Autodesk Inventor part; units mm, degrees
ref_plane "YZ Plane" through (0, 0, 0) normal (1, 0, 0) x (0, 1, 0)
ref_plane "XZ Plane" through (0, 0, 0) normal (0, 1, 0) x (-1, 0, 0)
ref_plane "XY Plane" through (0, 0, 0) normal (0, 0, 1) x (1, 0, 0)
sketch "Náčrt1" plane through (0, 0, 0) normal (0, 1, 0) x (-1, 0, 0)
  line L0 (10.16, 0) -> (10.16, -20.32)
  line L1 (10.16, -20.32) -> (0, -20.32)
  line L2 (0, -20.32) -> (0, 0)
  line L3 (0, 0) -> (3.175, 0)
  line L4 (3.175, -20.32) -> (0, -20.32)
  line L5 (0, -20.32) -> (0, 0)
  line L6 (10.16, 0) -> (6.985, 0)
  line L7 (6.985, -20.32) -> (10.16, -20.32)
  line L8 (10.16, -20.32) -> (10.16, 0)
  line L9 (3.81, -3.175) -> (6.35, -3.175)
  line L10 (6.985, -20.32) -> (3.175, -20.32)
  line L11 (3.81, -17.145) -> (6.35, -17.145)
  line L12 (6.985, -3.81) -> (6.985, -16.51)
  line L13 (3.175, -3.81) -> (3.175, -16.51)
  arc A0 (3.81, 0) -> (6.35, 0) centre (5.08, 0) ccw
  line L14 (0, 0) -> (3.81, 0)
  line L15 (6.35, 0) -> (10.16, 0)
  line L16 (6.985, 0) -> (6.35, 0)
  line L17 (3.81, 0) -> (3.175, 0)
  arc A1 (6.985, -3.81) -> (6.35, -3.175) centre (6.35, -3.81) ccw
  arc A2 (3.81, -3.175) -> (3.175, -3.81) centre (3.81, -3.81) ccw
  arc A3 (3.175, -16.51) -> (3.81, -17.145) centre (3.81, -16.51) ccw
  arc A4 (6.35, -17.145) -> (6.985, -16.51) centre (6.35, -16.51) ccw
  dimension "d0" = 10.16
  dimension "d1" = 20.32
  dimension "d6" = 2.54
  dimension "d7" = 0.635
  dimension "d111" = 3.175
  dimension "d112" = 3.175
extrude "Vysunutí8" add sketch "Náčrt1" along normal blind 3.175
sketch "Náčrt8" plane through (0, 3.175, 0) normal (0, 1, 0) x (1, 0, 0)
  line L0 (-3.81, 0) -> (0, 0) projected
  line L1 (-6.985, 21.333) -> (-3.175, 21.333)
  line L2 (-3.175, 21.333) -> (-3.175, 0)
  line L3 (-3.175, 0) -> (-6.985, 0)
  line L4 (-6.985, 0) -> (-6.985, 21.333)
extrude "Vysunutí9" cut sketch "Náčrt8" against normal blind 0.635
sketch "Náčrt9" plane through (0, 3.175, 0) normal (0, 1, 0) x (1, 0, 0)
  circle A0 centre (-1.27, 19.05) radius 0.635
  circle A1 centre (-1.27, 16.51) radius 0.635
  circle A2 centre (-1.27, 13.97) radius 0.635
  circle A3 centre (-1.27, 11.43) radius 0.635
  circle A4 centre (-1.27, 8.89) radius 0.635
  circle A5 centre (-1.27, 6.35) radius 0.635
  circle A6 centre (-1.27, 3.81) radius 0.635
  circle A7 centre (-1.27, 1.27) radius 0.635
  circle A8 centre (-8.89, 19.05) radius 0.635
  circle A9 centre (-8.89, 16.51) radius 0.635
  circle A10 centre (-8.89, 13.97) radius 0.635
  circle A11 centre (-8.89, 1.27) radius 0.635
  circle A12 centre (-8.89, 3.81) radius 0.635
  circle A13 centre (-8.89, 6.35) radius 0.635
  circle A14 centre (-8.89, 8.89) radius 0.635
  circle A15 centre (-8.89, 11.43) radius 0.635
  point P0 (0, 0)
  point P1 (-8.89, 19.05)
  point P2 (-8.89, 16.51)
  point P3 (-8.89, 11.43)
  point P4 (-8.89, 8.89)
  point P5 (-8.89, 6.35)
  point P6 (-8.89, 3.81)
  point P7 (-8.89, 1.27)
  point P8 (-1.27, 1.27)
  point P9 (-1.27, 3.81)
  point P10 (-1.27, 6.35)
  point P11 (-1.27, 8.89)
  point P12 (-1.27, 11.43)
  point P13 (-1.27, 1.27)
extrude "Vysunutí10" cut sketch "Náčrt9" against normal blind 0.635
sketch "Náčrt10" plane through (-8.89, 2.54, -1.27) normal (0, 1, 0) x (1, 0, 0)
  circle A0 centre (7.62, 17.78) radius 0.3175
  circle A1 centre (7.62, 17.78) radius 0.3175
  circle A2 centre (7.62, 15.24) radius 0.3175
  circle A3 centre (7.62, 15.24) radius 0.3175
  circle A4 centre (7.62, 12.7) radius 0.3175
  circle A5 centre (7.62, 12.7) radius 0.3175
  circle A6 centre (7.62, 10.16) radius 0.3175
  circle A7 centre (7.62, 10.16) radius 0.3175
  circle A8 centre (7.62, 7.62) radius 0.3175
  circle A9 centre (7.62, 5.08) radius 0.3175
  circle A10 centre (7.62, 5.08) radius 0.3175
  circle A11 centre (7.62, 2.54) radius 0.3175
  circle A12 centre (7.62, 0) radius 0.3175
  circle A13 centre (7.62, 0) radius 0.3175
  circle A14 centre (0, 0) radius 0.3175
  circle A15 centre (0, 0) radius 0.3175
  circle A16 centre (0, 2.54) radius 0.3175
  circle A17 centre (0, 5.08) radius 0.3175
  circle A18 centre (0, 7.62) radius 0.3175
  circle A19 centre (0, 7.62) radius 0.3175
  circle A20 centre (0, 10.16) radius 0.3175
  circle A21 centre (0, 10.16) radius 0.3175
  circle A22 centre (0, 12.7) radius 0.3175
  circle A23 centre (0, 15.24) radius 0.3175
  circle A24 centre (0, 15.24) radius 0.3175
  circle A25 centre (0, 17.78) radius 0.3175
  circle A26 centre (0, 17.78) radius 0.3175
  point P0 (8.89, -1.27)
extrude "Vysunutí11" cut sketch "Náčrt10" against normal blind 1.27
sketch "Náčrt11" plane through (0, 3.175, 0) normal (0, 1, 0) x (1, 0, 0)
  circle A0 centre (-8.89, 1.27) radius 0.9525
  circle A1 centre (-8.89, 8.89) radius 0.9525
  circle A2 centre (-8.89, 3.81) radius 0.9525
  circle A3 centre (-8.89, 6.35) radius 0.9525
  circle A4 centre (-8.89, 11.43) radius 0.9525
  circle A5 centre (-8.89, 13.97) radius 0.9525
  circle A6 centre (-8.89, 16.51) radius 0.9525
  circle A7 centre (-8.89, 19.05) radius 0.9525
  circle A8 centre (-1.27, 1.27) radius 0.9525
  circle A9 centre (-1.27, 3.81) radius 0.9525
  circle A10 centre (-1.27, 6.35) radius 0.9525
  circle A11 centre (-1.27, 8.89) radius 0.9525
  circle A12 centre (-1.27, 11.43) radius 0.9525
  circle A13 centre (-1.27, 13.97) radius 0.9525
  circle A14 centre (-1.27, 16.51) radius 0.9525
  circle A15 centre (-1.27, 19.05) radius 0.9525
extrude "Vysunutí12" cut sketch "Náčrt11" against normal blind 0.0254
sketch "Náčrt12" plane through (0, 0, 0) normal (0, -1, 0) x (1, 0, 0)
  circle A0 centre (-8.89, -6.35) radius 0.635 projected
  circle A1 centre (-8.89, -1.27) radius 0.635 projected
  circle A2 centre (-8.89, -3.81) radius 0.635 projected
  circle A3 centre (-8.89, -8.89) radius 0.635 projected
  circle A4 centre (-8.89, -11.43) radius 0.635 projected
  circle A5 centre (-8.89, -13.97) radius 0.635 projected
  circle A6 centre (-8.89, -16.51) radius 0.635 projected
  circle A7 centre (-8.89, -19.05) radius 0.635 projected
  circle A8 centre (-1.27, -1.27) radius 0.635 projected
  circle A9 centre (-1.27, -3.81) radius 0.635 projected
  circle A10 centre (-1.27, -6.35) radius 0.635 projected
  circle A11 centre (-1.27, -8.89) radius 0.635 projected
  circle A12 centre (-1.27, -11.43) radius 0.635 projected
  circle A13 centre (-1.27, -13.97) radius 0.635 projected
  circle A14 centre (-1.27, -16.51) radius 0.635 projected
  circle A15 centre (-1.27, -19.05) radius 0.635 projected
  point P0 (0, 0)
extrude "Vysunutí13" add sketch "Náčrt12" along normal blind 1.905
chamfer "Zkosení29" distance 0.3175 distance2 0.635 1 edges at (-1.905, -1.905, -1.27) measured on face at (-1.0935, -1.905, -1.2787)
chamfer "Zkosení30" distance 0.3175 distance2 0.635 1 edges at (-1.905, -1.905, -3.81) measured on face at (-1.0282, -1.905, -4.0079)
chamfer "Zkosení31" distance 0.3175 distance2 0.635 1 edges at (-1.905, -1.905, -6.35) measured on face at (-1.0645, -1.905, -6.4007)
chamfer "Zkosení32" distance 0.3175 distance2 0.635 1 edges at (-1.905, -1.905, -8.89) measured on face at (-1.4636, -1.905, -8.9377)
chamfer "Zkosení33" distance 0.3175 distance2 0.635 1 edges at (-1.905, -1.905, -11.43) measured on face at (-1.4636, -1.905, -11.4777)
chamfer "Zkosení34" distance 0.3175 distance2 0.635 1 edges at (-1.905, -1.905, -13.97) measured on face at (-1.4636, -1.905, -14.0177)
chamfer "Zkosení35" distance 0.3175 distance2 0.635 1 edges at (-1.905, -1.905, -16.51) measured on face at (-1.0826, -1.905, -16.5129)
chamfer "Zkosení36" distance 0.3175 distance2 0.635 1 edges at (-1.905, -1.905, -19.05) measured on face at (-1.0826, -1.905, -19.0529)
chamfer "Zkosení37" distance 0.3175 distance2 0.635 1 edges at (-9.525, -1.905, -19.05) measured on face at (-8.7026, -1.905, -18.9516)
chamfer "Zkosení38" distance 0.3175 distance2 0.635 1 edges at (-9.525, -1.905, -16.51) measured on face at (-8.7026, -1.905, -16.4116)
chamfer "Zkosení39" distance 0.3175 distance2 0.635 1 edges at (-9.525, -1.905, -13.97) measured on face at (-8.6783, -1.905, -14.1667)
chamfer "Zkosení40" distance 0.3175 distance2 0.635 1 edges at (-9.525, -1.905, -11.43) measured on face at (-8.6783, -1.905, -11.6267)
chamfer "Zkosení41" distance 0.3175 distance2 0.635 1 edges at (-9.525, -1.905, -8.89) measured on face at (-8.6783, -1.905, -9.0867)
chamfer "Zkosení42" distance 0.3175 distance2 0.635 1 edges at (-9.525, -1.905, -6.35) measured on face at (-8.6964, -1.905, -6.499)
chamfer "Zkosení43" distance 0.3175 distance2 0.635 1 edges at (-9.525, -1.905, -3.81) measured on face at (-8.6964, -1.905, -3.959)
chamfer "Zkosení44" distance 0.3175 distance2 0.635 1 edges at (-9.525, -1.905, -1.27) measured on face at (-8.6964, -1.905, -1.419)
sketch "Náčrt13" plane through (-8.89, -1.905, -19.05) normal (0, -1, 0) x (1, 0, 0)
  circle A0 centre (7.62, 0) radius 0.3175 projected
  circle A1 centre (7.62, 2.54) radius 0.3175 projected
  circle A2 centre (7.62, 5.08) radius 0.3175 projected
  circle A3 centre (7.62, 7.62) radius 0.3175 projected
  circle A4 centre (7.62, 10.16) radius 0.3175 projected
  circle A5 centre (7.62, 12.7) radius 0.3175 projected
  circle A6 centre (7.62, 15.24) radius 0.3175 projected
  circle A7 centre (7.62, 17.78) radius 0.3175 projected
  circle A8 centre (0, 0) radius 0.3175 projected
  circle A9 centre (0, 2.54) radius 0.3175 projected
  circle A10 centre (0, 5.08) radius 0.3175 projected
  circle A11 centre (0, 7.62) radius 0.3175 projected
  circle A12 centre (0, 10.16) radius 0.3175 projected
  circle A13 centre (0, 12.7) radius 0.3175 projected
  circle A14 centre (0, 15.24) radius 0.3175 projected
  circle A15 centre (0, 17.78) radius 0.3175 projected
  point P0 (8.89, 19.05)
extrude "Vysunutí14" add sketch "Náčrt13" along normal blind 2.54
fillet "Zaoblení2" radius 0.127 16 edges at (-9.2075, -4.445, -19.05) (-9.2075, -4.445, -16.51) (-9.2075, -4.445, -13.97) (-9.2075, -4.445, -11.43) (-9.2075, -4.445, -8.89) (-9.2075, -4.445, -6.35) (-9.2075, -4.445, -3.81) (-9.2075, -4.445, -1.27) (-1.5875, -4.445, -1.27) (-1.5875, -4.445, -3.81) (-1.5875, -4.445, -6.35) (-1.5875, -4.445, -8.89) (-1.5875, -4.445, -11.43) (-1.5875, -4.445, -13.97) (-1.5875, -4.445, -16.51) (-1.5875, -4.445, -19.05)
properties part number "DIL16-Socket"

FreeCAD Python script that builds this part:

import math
import FreeCAD as App
import Part
import Sketcher
Q = App.Units.Quantity


def edges_at(feature, points):
    """Names of the edges that pass closest to the given points."""
    edges = feature.Shape.Edges
    near = lambda p: min(range(len(edges)), key=lambda i: edges[i].distToShape(Part.Vertex(*p))[0])
    return sorted({f"Edge{near(p) + 1}" for p in points})

doc = App.newDocument("Part")
body = doc.addObject("PartDesign::Body", "Body")

sketch1 = body.newObject("Sketcher::SketchObject", "Sketch")
sketch1.AttachmentSupport = (doc.getObject("XZ_Plane"), [""])
sketch1.MapMode = "FlatFace"
sketch1.addGeometry(Part.LineSegment(App.Vector(-10.16, -20.32, 0), App.Vector(-10.16, 0, 0)), False)
sketch1.addGeometry(Part.LineSegment(App.Vector(-10.16, 0, 0), App.Vector(-6.35, 0, 0)), False)
sketch1.addGeometry(Part.ArcOfCircle(Part.Circle(App.Vector(-5.08, 0, 0), App.Vector(0, 0, 1), 1.27), math.radians(180), math.radians(360)), False)
sketch1.addGeometry(Part.LineSegment(App.Vector(-3.81, 0, 0), App.Vector(0, 0, 0)), False)
sketch1.addGeometry(Part.LineSegment(App.Vector(0, 0, 0), App.Vector(0, -20.32, 0)), False)
sketch1.addGeometry(Part.LineSegment(App.Vector(0, -20.32, 0), App.Vector(-10.16, -20.32, 0)), False)
sketch1.addGeometry(Part.ArcOfCircle(Part.Circle(App.Vector(-3.81, -3.81, 0), App.Vector(0, 0, 1), 0.635), math.radians(0), math.radians(90)), False)
sketch1.addGeometry(Part.LineSegment(App.Vector(-3.81, -3.175, 0), App.Vector(-6.35, -3.175, 0)), False)
sketch1.addGeometry(Part.ArcOfCircle(Part.Circle(App.Vector(-6.35, -3.81, 0), App.Vector(0, 0, 1), 0.635), math.radians(90), math.radians(180)), False)
sketch1.addGeometry(Part.LineSegment(App.Vector(-6.985, -3.81, 0), App.Vector(-6.985, -16.51, 0)), False)
sketch1.addGeometry(Part.ArcOfCircle(Part.Circle(App.Vector(-6.35, -16.51, 0), App.Vector(0, 0, 1), 0.635), math.radians(180), math.radians(270)), False)
sketch1.addGeometry(Part.LineSegment(App.Vector(-6.35, -17.145, 0), App.Vector(-3.81, -17.145, 0)), False)
sketch1.addGeometry(Part.ArcOfCircle(Part.Circle(App.Vector(-3.81, -16.51, 0), App.Vector(0, 0, 1), 0.635), math.radians(-90), math.radians(0)), False)
sketch1.addGeometry(Part.LineSegment(App.Vector(-3.175, -16.51, 0), App.Vector(-3.175, -3.81, 0)), False)
sketch1.addConstraint(Sketcher.Constraint("Coincident", 0, 2, 1, 1))
sketch1.addConstraint(Sketcher.Constraint("Coincident", 1, 2, 2, 1))
sketch1.addConstraint(Sketcher.Constraint("Coincident", 2, 2, 3, 1))
sketch1.addConstraint(Sketcher.Constraint("Coincident", 3, 2, 4, 1))
sketch1.addConstraint(Sketcher.Constraint("Coincident", 4, 2, 5, 1))
sketch1.addConstraint(Sketcher.Constraint("Coincident", 5, 2, 0, 1))
sketch1.addConstraint(Sketcher.Constraint("Tangent", 6, 2, 7, 1))
sketch1.addConstraint(Sketcher.Constraint("Tangent", 7, 2, 8, 1))
sketch1.addConstraint(Sketcher.Constraint("Tangent", 8, 2, 9, 1))
sketch1.addConstraint(Sketcher.Constraint("Tangent", 9, 2, 10, 1))
sketch1.addConstraint(Sketcher.Constraint("Tangent", 10, 2, 11, 1))
sketch1.addConstraint(Sketcher.Constraint("Tangent", 11, 2, 12, 1))
sketch1.addConstraint(Sketcher.Constraint("Tangent", 12, 2, 13, 1))
sketch1.addConstraint(Sketcher.Constraint("Tangent", 13, 2, 6, 1))
sketch1.addConstraint(Sketcher.Constraint("Vertical", 0))
sketch1.addConstraint(Sketcher.Constraint("Horizontal", 1))
sketch1.addConstraint(Sketcher.Constraint("Horizontal", 3))
sketch1.addConstraint(Sketcher.Constraint("Vertical", 4))
sketch1.addConstraint(Sketcher.Constraint("Horizontal", 5))
sketch1.addConstraint(Sketcher.Constraint("Horizontal", 7))
sketch1.addConstraint(Sketcher.Constraint("Vertical", 9))
sketch1.addConstraint(Sketcher.Constraint("Horizontal", 11))
sketch1.addConstraint(Sketcher.Constraint("Vertical", 13))
sketch1.addConstraint(Sketcher.Constraint("Coincident", 3, 2, -1, 1))
sketch1.addConstraint(Sketcher.Constraint("Equal", 6, 8))
sketch1.addConstraint(Sketcher.Constraint("Equal", 8, 10))
sketch1.addConstraint(Sketcher.Constraint("Equal", 10, 12))
sketch1.addConstraint(Sketcher.Constraint("PointOnObject", 2, 3, -1))
sketch1.addConstraint(Sketcher.Constraint("PointOnObject", 0, 2, -1))
sketch1.addConstraint(Sketcher.Constraint("Vertical", 10, 3, 1, 2))
sketch1.addConstraint(Sketcher.Constraint("Vertical", 12, 3, 2, 2))
sketch1.addConstraint(Sketcher.Constraint("Equal", 1, 3))
sketch1.addConstraint(Sketcher.Constraint("Radius", 2, Q("0.05 in")))
sketch1.addConstraint(Sketcher.Constraint("DistanceX", 5, 2, 5, 1, Q("0.4 in")))
sketch1.addConstraint(Sketcher.Constraint("DistanceY", 0, 1, 0, 2, Q("0.8 in")))
sketch1.addConstraint(Sketcher.Constraint("Radius", 6, Q("0.025 in")))
sketch1.addConstraint(Sketcher.Constraint("DistanceY", 9, 2, 9, 1, Q("0.5 in")))
sketch1.addConstraint(Sketcher.Constraint("DistanceY", 6, 2, -1, 1, Q("0.125 in")))
pad1 = body.newObject("PartDesign::Pad", "Pad")
pad1.Profile = sketch1
pad1.Length = Q("0.125 in")
pad1.Reversed = True

sketch2 = body.newObject("Sketcher::SketchObject", "Sketch001")
sketch2.AttachmentSupport = (doc.getObject("XZ_Plane"), [""])
sketch2.MapMode = "FlatFace"
sketch2.AttachmentOffset = App.Placement(App.Vector(0, 0, -0.125 * 25.4), App.Rotation())
sketch2.addGeometry(Part.LineSegment(App.Vector(-6.985, 0, 0), App.Vector(-3.175, 0, 0)), False)
sketch2.addGeometry(Part.LineSegment(App.Vector(-3.175, 0, 0), App.Vector(-3.175, -21.333, 0)), False)
sketch2.addGeometry(Part.LineSegment(App.Vector(-3.175, -21.333, 0), App.Vector(-6.985, -21.333, 0)), False)
sketch2.addGeometry(Part.LineSegment(App.Vector(-6.985, -21.333, 0), App.Vector(-6.985, 0, 0)), False)
sketch2.addConstraint(Sketcher.Constraint("Coincident", 0, 2, 1, 1))
sketch2.addConstraint(Sketcher.Constraint("Coincident", 1, 2, 2, 1))
sketch2.addConstraint(Sketcher.Constraint("Coincident", 2, 2, 3, 1))
sketch2.addConstraint(Sketcher.Constraint("Coincident", 3, 2, 0, 1))
sketch2.addConstraint(Sketcher.Constraint("Horizontal", 0))
sketch2.addConstraint(Sketcher.Constraint("Vertical", 1))
sketch2.addConstraint(Sketcher.Constraint("Horizontal", 2))
sketch2.addConstraint(Sketcher.Constraint("Vertical", 3))
sketch2.addConstraint(Sketcher.Constraint("PointOnObject", 0, 2, -1))
sketch2.addConstraint(Sketcher.Constraint("DistanceX", 0, 1, 0, 2, Q("0.15 in")))
sketch2.addConstraint(Sketcher.Constraint("DistanceX", 0, 2, -1, 1, Q("0.125 in")))
sketch2.addConstraint(Sketcher.Constraint("DistanceY", 1, 2, 1, 1, Q("21.333 mm")))
pocket1 = body.newObject("PartDesign::Pocket", "Pocket")
pocket1.Profile = sketch2
pocket1.Length = Q("0.025 in")
pocket1.Reversed = True

sketch3 = body.newObject("Sketcher::SketchObject", "Sketch002")
sketch3.AttachmentSupport = (doc.getObject("XZ_Plane"), [""])
sketch3.MapMode = "FlatFace"
sketch3.AttachmentOffset = App.Placement(App.Vector(0, 0, -0.125 * 25.4), App.Rotation())
sketch3.addGeometry(Part.Circle(App.Vector(-1.27, -19.05, 0), App.Vector(0, 0, 1), 0.635), False)
sketch3.addGeometry(Part.Circle(App.Vector(-1.27, -16.51, 0), App.Vector(0, 0, 1), 0.635), False)
sketch3.addGeometry(Part.Circle(App.Vector(-1.27, -13.97, 0), App.Vector(0, 0, 1), 0.635), False)
sketch3.addGeometry(Part.Circle(App.Vector(-1.27, -11.43, 0), App.Vector(0, 0, 1), 0.635), False)
sketch3.addGeometry(Part.Circle(App.Vector(-1.27, -8.89, 0), App.Vector(0, 0, 1), 0.635), False)
sketch3.addGeometry(Part.Circle(App.Vector(-1.27, -6.35, 0), App.Vector(0, 0, 1), 0.635), False)
sketch3.addGeometry(Part.Circle(App.Vector(-1.27, -3.81, 0), App.Vector(0, 0, 1), 0.635), False)
sketch3.addGeometry(Part.Circle(App.Vector(-1.27, -1.27, 0), App.Vector(0, 0, 1), 0.635), False)
sketch3.addGeometry(Part.Circle(App.Vector(-8.89, -19.05, 0), App.Vector(0, 0, 1), 0.635), False)
sketch3.addGeometry(Part.Circle(App.Vector(-8.89, -16.51, 0), App.Vector(0, 0, 1), 0.635), False)
sketch3.addGeometry(Part.Circle(App.Vector(-8.89, -13.97, 0), App.Vector(0, 0, 1), 0.635), False)
sketch3.addGeometry(Part.Circle(App.Vector(-8.89, -1.27, 0), App.Vector(0, 0, 1), 0.635), False)
sketch3.addGeometry(Part.Circle(App.Vector(-8.89, -3.81, 0), App.Vector(0, 0, 1), 0.635), False)
sketch3.addGeometry(Part.Circle(App.Vector(-8.89, -6.35, 0), App.Vector(0, 0, 1), 0.635), False)
sketch3.addGeometry(Part.Circle(App.Vector(-8.89, -8.89, 0), App.Vector(0, 0, 1), 0.635), False)
sketch3.addGeometry(Part.Circle(App.Vector(-8.89, -11.43, 0), App.Vector(0, 0, 1), 0.635), False)
sketch3.addConstraint(Sketcher.Constraint("Equal", 0, 1))
sketch3.addConstraint(Sketcher.Constraint("Equal", 1, 2))
sketch3.addConstraint(Sketcher.Constraint("Equal", 2, 3))
sketch3.addConstraint(Sketcher.Constraint("Equal", 3, 4))
sketch3.addConstraint(Sketcher.Constraint("Equal", 4, 5))
sketch3.addConstraint(Sketcher.Constraint("Equal", 5, 6))
sketch3.addConstraint(Sketcher.Constraint("Equal", 6, 7))
sketch3.addConstraint(Sketcher.Constraint("Equal", 7, 8))
sketch3.addConstraint(Sketcher.Constraint("Equal", 8, 9))
sketch3.addConstraint(Sketcher.Constraint("Equal", 9, 10))
sketch3.addConstraint(Sketcher.Constraint("Equal", 10, 11))
sketch3.addConstraint(Sketcher.Constraint("Equal", 11, 12))
sketch3.addConstraint(Sketcher.Constraint("Equal", 12, 13))
sketch3.addConstraint(Sketcher.Constraint("Equal", 13, 14))
sketch3.addConstraint(Sketcher.Constraint("Equal", 14, 15))
sketch3.addConstraint(Sketcher.Constraint("Horizontal", 0, 3, 8, 3))
sketch3.addConstraint(Sketcher.Constraint("Horizontal", 1, 3, 9, 3))
sketch3.addConstraint(Sketcher.Constraint("Horizontal", 2, 3, 10, 3))
sketch3.addConstraint(Sketcher.Constraint("Horizontal", 7, 3, 11, 3))
sketch3.addConstraint(Sketcher.Constraint("Horizontal", 6, 3, 12, 3))
sketch3.addConstraint(Sketcher.Constraint("Horizontal", 5, 3, 13, 3))
sketch3.addConstraint(Sketcher.Constraint("Horizontal", 4, 3, 14, 3))
sketch3.addConstraint(Sketcher.Constraint("Horizontal", 3, 3, 15, 3))
sketch3.addConstraint(Sketcher.Constraint("Vertical", 0, 3, 1, 3))
sketch3.addConstraint(Sketcher.Constraint("Vertical", 1, 3, 2, 3))
sketch3.addConstraint(Sketcher.Constraint("Vertical", 2, 3, 3, 3))
sketch3.addConstraint(Sketcher.Constraint("Vertical", 3, 3, 4, 3))
sketch3.addConstraint(Sketcher.Constraint("Vertical", 4, 3, 5, 3))
sketch3.addConstraint(Sketcher.Constraint("Vertical", 5, 3, 6, 3))
sketch3.addConstraint(Sketcher.Constraint("Vertical", 6, 3, 7, 3))
sketch3.addConstraint(Sketcher.Constraint("Vertical", 8, 3, 9, 3))
sketch3.addConstraint(Sketcher.Constraint("Vertical", 9, 3, 10, 3))
sketch3.addConstraint(Sketcher.Constraint("Vertical", 10, 3, 11, 3))
sketch3.addConstraint(Sketcher.Constraint("Vertical", 11, 3, 12, 3))
sketch3.addConstraint(Sketcher.Constraint("Vertical", 12, 3, 13, 3))
sketch3.addConstraint(Sketcher.Constraint("Vertical", 13, 3, 14, 3))
sketch3.addConstraint(Sketcher.Constraint("Vertical", 14, 3, 15, 3))
sketch3.addConstraint(Sketcher.Constraint("Diameter", 0, Q("0.05 in")))
sketch3.addConstraint(Sketcher.Constraint("DistanceY", 0, 3, 1, 3, Q("0.1 in")))
sketch3.addConstraint(Sketcher.Constraint("DistanceY", 1, 3, 2, 3, Q("0.1 in")))
sketch3.addConstraint(Sketcher.Constraint("DistanceY", 2, 3, 3, 3, Q("0.1 in")))
sketch3.addConstraint(Sketcher.Constraint("DistanceY", 3, 3, 4, 3, Q("0.1 in")))
sketch3.addConstraint(Sketcher.Constraint("DistanceY", 4, 3, 5, 3, Q("0.1 in")))
sketch3.addConstraint(Sketcher.Constraint("DistanceY", 5, 3, 6, 3, Q("0.1 in")))
sketch3.addConstraint(Sketcher.Constraint("DistanceY", 6, 3, 7, 3, Q("0.1 in")))
sketch3.addConstraint(Sketcher.Constraint("DistanceX", 8, 3, 0, 3, Q("0.3 in")))
sketch3.addConstraint(Sketcher.Constraint("DistanceX", 0, 3, -1, 1, Q("0.05 in")))
sketch3.addConstraint(Sketcher.Constraint("DistanceY", 0, 3, -1, 1, Q("0.75 in")))
pocket2 = body.newObject("PartDesign::Pocket", "Pocket001")
pocket2.Profile = sketch3
pocket2.Length = Q("0.025 in")
pocket2.Reversed = True

sketch4 = body.newObject("Sketcher::SketchObject", "Sketch003")
sketch4.AttachmentSupport = (doc.getObject("XZ_Plane"), [""])
sketch4.MapMode = "FlatFace"
sketch4.AttachmentOffset = App.Placement(App.Vector(0, 0, -0.1 * 25.4), App.Rotation())
sketch4.addGeometry(Part.Circle(App.Vector(-1.27, -19.05, 0), App.Vector(0, 0, 1), 0.3175), False)
sketch4.addGeometry(Part.Circle(App.Vector(-1.27, -16.51, 0), App.Vector(0, 0, 1), 0.3175), False)
sketch4.addGeometry(Part.Circle(App.Vector(-1.27, -13.97, 0), App.Vector(0, 0, 1), 0.3175), False)
sketch4.addGeometry(Part.Circle(App.Vector(-1.27, -11.43, 0), App.Vector(0, 0, 1), 0.3175), False)
sketch4.addGeometry(Part.Circle(App.Vector(-1.27, -8.89, 0), App.Vector(0, 0, 1), 0.3175), False)
sketch4.addGeometry(Part.Circle(App.Vector(-1.27, -6.35, 0), App.Vector(0, 0, 1), 0.3175), False)
sketch4.addGeometry(Part.Circle(App.Vector(-1.27, -3.81, 0), App.Vector(0, 0, 1), 0.3175), False)
sketch4.addGeometry(Part.Circle(App.Vector(-1.27, -1.27, 0), App.Vector(0, 0, 1), 0.3175), False)
sketch4.addGeometry(Part.Circle(App.Vector(-8.89, -1.27, 0), App.Vector(0, 0, 1), 0.3175), False)
sketch4.addGeometry(Part.Circle(App.Vector(-8.89, -3.81, 0), App.Vector(0, 0, 1), 0.3175), False)
sketch4.addGeometry(Part.Circle(App.Vector(-8.89, -6.35, 0), App.Vector(0, 0, 1), 0.3175), False)
sketch4.addGeometry(Part.Circle(App.Vector(-8.89, -8.89, 0), App.Vector(0, 0, 1), 0.3175), False)
sketch4.addGeometry(Part.Circle(App.Vector(-8.89, -11.43, 0), App.Vector(0, 0, 1), 0.3175), False)
sketch4.addGeometry(Part.Circle(App.Vector(-8.89, -13.97, 0), App.Vector(0, 0, 1), 0.3175), False)
sketch4.addGeometry(Part.Circle(App.Vector(-8.89, -16.51, 0), App.Vector(0, 0, 1), 0.3175), False)
sketch4.addGeometry(Part.Circle(App.Vector(-8.89, -19.05, 0), App.Vector(0, 0, 1), 0.3175), False)
sketch4.addConstraint(Sketcher.Constraint("Equal", 0, 1))
sketch4.addConstraint(Sketcher.Constraint("Equal", 1, 2))
sketch4.addConstraint(Sketcher.Constraint("Equal", 2, 3))
sketch4.addConstraint(Sketcher.Constraint("Equal", 3, 4))
sketch4.addConstraint(Sketcher.Constraint("Equal", 4, 5))
sketch4.addConstraint(Sketcher.Constraint("Equal", 5, 6))
sketch4.addConstraint(Sketcher.Constraint("Equal", 6, 7))
sketch4.addConstraint(Sketcher.Constraint("Equal", 7, 8))
sketch4.addConstraint(Sketcher.Constraint("Equal", 8, 9))
sketch4.addConstraint(Sketcher.Constraint("Equal", 9, 10))
sketch4.addConstraint(Sketcher.Constraint("Equal", 10, 11))
sketch4.addConstraint(Sketcher.Constraint("Equal", 11, 12))
sketch4.addConstraint(Sketcher.Constraint("Equal", 12, 13))
sketch4.addConstraint(Sketcher.Constraint("Equal", 13, 14))
sketch4.addConstraint(Sketcher.Constraint("Equal", 14, 15))
sketch4.addConstraint(Sketcher.Constraint("Horizontal", 7, 3, 8, 3))
sketch4.addConstraint(Sketcher.Constraint("Horizontal", 6, 3, 9, 3))
sketch4.addConstraint(Sketcher.Constraint("Horizontal", 5, 3, 10, 3))
sketch4.addConstraint(Sketcher.Constraint("Horizontal", 4, 3, 11, 3))
sketch4.addConstraint(Sketcher.Constraint("Horizontal", 3, 3, 12, 3))
sketch4.addConstraint(Sketcher.Constraint("Horizontal", 2, 3, 13, 3))
sketch4.addConstraint(Sketcher.Constraint("Horizontal", 1, 3, 14, 3))
sketch4.addConstraint(Sketcher.Constraint("Horizontal", 0, 3, 15, 3))
sketch4.addConstraint(Sketcher.Constraint("Vertical", 0, 3, 1, 3))
sketch4.addConstraint(Sketcher.Constraint("Vertical", 1, 3, 2, 3))
sketch4.addConstraint(Sketcher.Constraint("Vertical", 2, 3, 3, 3))
sketch4.addConstraint(Sketcher.Constraint("Vertical", 3, 3, 4, 3))
sketch4.addConstraint(Sketcher.Constraint("Vertical", 4, 3, 5, 3))
sketch4.addConstraint(Sketcher.Constraint("Vertical", 5, 3, 6, 3))
sketch4.addConstraint(Sketcher.Constraint("Vertical", 6, 3, 7, 3))
sketch4.addConstraint(Sketcher.Constraint("Vertical", 8, 3, 9, 3))
sketch4.addConstraint(Sketcher.Constraint("Vertical", 9, 3, 10, 3))
sketch4.addConstraint(Sketcher.Constraint("Vertical", 10, 3, 11, 3))
sketch4.addConstraint(Sketcher.Constraint("Vertical", 11, 3, 12, 3))
sketch4.addConstraint(Sketcher.Constraint("Vertical", 12, 3, 13, 3))
sketch4.addConstraint(Sketcher.Constraint("Vertical", 13, 3, 14, 3))
sketch4.addConstraint(Sketcher.Constraint("Vertical", 14, 3, 15, 3))
sketch4.addConstraint(Sketcher.Constraint("Diameter", 0, Q("0.025 in")))
sketch4.addConstraint(Sketcher.Constraint("DistanceY", 0, 3, 1, 3, Q("0.1 in")))
sketch4.addConstraint(Sketcher.Constraint("DistanceY", 1, 3, 2, 3, Q("0.1 in")))
sketch4.addConstraint(Sketcher.Constraint("DistanceY", 2, 3, 3, 3, Q("0.1 in")))
sketch4.addConstraint(Sketcher.Constraint("DistanceY", 3, 3, 4, 3, Q("0.1 in")))
sketch4.addConstraint(Sketcher.Constraint("DistanceY", 4, 3, 5, 3, Q("0.1 in")))
sketch4.addConstraint(Sketcher.Constraint("DistanceY", 5, 3, 6, 3, Q("0.1 in")))
sketch4.addConstraint(Sketcher.Constraint("DistanceY", 6, 3, 7, 3, Q("0.1 in")))
sketch4.addConstraint(Sketcher.Constraint("DistanceX", 8, 3, 7, 3, Q("0.3 in")))
sketch4.addConstraint(Sketcher.Constraint("DistanceX", 0, 3, -1, 1, Q("0.05 in")))
sketch4.addConstraint(Sketcher.Constraint("DistanceY", 0, 3, -1, 1, Q("0.75 in")))
pocket3 = body.newObject("PartDesign::Pocket", "Pocket002")
pocket3.Profile = sketch4
pocket3.Length = Q("0.05 in")
pocket3.Reversed = True

sketch5 = body.newObject("Sketcher::SketchObject", "Sketch004")
sketch5.AttachmentSupport = (doc.getObject("XZ_Plane"), [""])
sketch5.MapMode = "FlatFace"
sketch5.AttachmentOffset = App.Placement(App.Vector(0, 0, -0.125 * 25.4), App.Rotation())
sketch5.addGeometry(Part.Circle(App.Vector(-8.89, -1.27, 0), App.Vector(0, 0, 1), 0.9525), False)
sketch5.addGeometry(Part.Circle(App.Vector(-8.89, -8.89, 0), App.Vector(0, 0, 1), 0.9525), False)
sketch5.addGeometry(Part.Circle(App.Vector(-8.89, -3.81, 0), App.Vector(0, 0, 1), 0.9525), False)
sketch5.addGeometry(Part.Circle(App.Vector(-8.89, -6.35, 0), App.Vector(0, 0, 1), 0.9525), False)
sketch5.addGeometry(Part.Circle(App.Vector(-8.89, -11.43, 0), App.Vector(0, 0, 1), 0.9525), False)
sketch5.addGeometry(Part.Circle(App.Vector(-8.89, -13.97, 0), App.Vector(0, 0, 1), 0.9525), False)
sketch5.addGeometry(Part.Circle(App.Vector(-8.89, -16.51, 0), App.Vector(0, 0, 1), 0.9525), False)
sketch5.addGeometry(Part.Circle(App.Vector(-8.89, -19.05, 0), App.Vector(0, 0, 1), 0.9525), False)
sketch5.addGeometry(Part.Circle(App.Vector(-1.27, -1.27, 0), App.Vector(0, 0, 1), 0.9525), False)
sketch5.addGeometry(Part.Circle(App.Vector(-1.27, -3.81, 0), App.Vector(0, 0, 1), 0.9525), False)
sketch5.addGeometry(Part.Circle(App.Vector(-1.27, -6.35, 0), App.Vector(0, 0, 1), 0.9525), False)
sketch5.addGeometry(Part.Circle(App.Vector(-1.27, -8.89, 0), App.Vector(0, 0, 1), 0.9525), False)
sketch5.addGeometry(Part.Circle(App.Vector(-1.27, -11.43, 0), App.Vector(0, 0, 1), 0.9525), False)
sketch5.addGeometry(Part.Circle(App.Vector(-1.27, -13.97, 0), App.Vector(0, 0, 1), 0.9525), False)
sketch5.addGeometry(Part.Circle(App.Vector(-1.27, -16.51, 0), App.Vector(0, 0, 1), 0.9525), False)
sketch5.addGeometry(Part.Circle(App.Vector(-1.27, -19.05, 0), App.Vector(0, 0, 1), 0.9525), False)
sketch5.addConstraint(Sketcher.Constraint("Equal", 0, 1))
sketch5.addConstraint(Sketcher.Constraint("Equal", 1, 2))
sketch5.addConstraint(Sketcher.Constraint("Equal", 2, 3))
sketch5.addConstraint(Sketcher.Constraint("Equal", 3, 4))
sketch5.addConstraint(Sketcher.Constraint("Equal", 4, 5))
sketch5.addConstraint(Sketcher.Constraint("Equal", 5, 6))
sketch5.addConstraint(Sketcher.Constraint("Equal", 6, 7))
sketch5.addConstraint(Sketcher.Constraint("Equal", 7, 8))
sketch5.addConstraint(Sketcher.Constraint("Equal", 8, 9))
sketch5.addConstraint(Sketcher.Constraint("Equal", 9, 10))
sketch5.addConstraint(Sketcher.Constraint("Equal", 10, 11))
sketch5.addConstraint(Sketcher.Constraint("Equal", 11, 12))
sketch5.addConstraint(Sketcher.Constraint("Equal", 12, 13))
sketch5.addConstraint(Sketcher.Constraint("Equal", 13, 14))
sketch5.addConstraint(Sketcher.Constraint("Equal", 14, 15))
sketch5.addConstraint(Sketcher.Constraint("Horizontal", 0, 3, 8, 3))
sketch5.addConstraint(Sketcher.Constraint("Horizontal", 2, 3, 9, 3))
sketch5.addConstraint(Sketcher.Constraint("Horizontal", 3, 3, 10, 3))
sketch5.addConstraint(Sketcher.Constraint("Horizontal", 1, 3, 11, 3))
sketch5.addConstraint(Sketcher.Constraint("Horizontal", 4, 3, 12, 3))
sketch5.addConstraint(Sketcher.Constraint("Horizontal", 5, 3, 13, 3))
sketch5.addConstraint(Sketcher.Constraint("Horizontal", 6, 3, 14, 3))
sketch5.addConstraint(Sketcher.Constraint("Horizontal", 7, 3, 15, 3))
sketch5.addConstraint(Sketcher.Constraint("Vertical", 0, 3, 1, 3))
sketch5.addConstraint(Sketcher.Constraint("Vertical", 1, 3, 2, 3))
sketch5.addConstraint(Sketcher.Constraint("Vertical", 2, 3, 3, 3))
sketch5.addConstraint(Sketcher.Constraint("Vertical", 3, 3, 4, 3))
sketch5.addConstraint(Sketcher.Constraint("Vertical", 4, 3, 5, 3))
sketch5.addConstraint(Sketcher.Constraint("Vertical", 5, 3, 6, 3))
sketch5.addConstraint(Sketcher.Constraint("Vertical", 6, 3, 7, 3))
sketch5.addConstraint(Sketcher.Constraint("Vertical", 8, 3, 9, 3))
sketch5.addConstraint(Sketcher.Constraint("Vertical", 9, 3, 10, 3))
sketch5.addConstraint(Sketcher.Constraint("Vertical", 10, 3, 11, 3))
sketch5.addConstraint(Sketcher.Constraint("Vertical", 11, 3, 12, 3))
sketch5.addConstraint(Sketcher.Constraint("Vertical", 12, 3, 13, 3))
sketch5.addConstraint(Sketcher.Constraint("Vertical", 13, 3, 14, 3))
sketch5.addConstraint(Sketcher.Constraint("Vertical", 14, 3, 15, 3))
sketch5.addConstraint(Sketcher.Constraint("Diameter", 0, Q("0.075 in")))
sketch5.addConstraint(Sketcher.Constraint("DistanceY", 1, 3, 0, 3, Q("0.3 in")))
sketch5.addConstraint(Sketcher.Constraint("DistanceY", 2, 3, 0, 3, Q("0.1 in")))
sketch5.addConstraint(Sketcher.Constraint("DistanceY", 3, 3, 2, 3, Q("0.1 in")))
sketch5.addConstraint(Sketcher.Constraint("DistanceY", 4, 3, 1, 3, Q("0.1 in")))
sketch5.addConstraint(Sketcher.Constraint("DistanceY", 5, 3, 4, 3, Q("0.1 in")))
sketch5.addConstraint(Sketcher.Constraint("DistanceY", 6, 3, 5, 3, Q("0.1 in")))
sketch5.addConstraint(Sketcher.Constraint("DistanceY", 7, 3, 6, 3, Q("0.1 in")))
sketch5.addConstraint(Sketcher.Constraint("DistanceX", 0, 3, 8, 3, Q("0.3 in")))
sketch5.addConstraint(Sketcher.Constraint("DistanceX", 0, 3, -1, 1, Q("0.35 in")))
sketch5.addConstraint(Sketcher.Constraint("DistanceY", 0, 3, -1, 1, Q("0.05 in")))
pocket4 = body.newObject("PartDesign::Pocket", "Pocket003")
pocket4.Profile = sketch5
pocket4.Length = Q("0.001 in")
pocket4.Reversed = True

sketch6 = body.newObject("Sketcher::SketchObject", "Sketch005")
sketch6.AttachmentSupport = (doc.getObject("XZ_Plane"), [""])
sketch6.MapMode = "FlatFace"
sketch6.addGeometry(Part.Circle(App.Vector(-8.89, -6.35, 0), App.Vector(0, 0, 1), 0.635), False)
sketch6.addGeometry(Part.Circle(App.Vector(-8.89, -1.27, 0), App.Vector(0, 0, 1), 0.635), False)
sketch6.addGeometry(Part.Circle(App.Vector(-8.89, -3.81, 0), App.Vector(0, 0, 1), 0.635), False)
sketch6.addGeometry(Part.Circle(App.Vector(-8.89, -8.89, 0), App.Vector(0, 0, 1), 0.635), False)
sketch6.addGeometry(Part.Circle(App.Vector(-8.89, -11.43, 0), App.Vector(0, 0, 1), 0.635), False)
sketch6.addGeometry(Part.Circle(App.Vector(-8.89, -13.97, 0), App.Vector(0, 0, 1), 0.635), False)
sketch6.addGeometry(Part.Circle(App.Vector(-8.89, -16.51, 0), App.Vector(0, 0, 1), 0.635), False)
sketch6.addGeometry(Part.Circle(App.Vector(-8.89, -19.05, 0), App.Vector(0, 0, 1), 0.635), False)
sketch6.addGeometry(Part.Circle(App.Vector(-1.27, -1.27, 0), App.Vector(0, 0, 1), 0.635), False)
sketch6.addGeometry(Part.Circle(App.Vector(-1.27, -3.81, 0), App.Vector(0, 0, 1), 0.635), False)
sketch6.addGeometry(Part.Circle(App.Vector(-1.27, -6.35, 0), App.Vector(0, 0, 1), 0.635), False)
sketch6.addGeometry(Part.Circle(App.Vector(-1.27, -8.89, 0), App.Vector(0, 0, 1), 0.635), False)
sketch6.addGeometry(Part.Circle(App.Vector(-1.27, -11.43, 0), App.Vector(0, 0, 1), 0.635), False)
sketch6.addGeometry(Part.Circle(App.Vector(-1.27, -13.97, 0), App.Vector(0, 0, 1), 0.635), False)
sketch6.addGeometry(Part.Circle(App.Vector(-1.27, -16.51, 0), App.Vector(0, 0, 1), 0.635), False)
sketch6.addGeometry(Part.Circle(App.Vector(-1.27, -19.05, 0), App.Vector(0, 0, 1), 0.635), False)
sketch6.addConstraint(Sketcher.Constraint("Equal", 0, 1))
sketch6.addConstraint(Sketcher.Constraint("Equal", 1, 2))
sketch6.addConstraint(Sketcher.Constraint("Equal", 2, 3))
sketch6.addConstraint(Sketcher.Constraint("Equal", 3, 4))
sketch6.addConstraint(Sketcher.Constraint("Equal", 4, 5))
sketch6.addConstraint(Sketcher.Constraint("Equal", 5, 6))
sketch6.addConstraint(Sketcher.Constraint("Equal", 6, 7))
sketch6.addConstraint(Sketcher.Constraint("Equal", 7, 8))
sketch6.addConstraint(Sketcher.Constraint("Equal", 8, 9))
sketch6.addConstraint(Sketcher.Constraint("Equal", 9, 10))
sketch6.addConstraint(Sketcher.Constraint("Equal", 10, 11))
sketch6.addConstraint(Sketcher.Constraint("Equal", 11, 12))
sketch6.addConstraint(Sketcher.Constraint("Equal", 12, 13))
sketch6.addConstraint(Sketcher.Constraint("Equal", 13, 14))
sketch6.addConstraint(Sketcher.Constraint("Equal", 14, 15))
sketch6.addConstraint(Sketcher.Constraint("Horizontal", 1, 3, 8, 3))
sketch6.addConstraint(Sketcher.Constraint("Horizontal", 2, 3, 9, 3))
sketch6.addConstraint(Sketcher.Constraint("Horizontal", 0, 3, 10, 3))
sketch6.addConstraint(Sketcher.Constraint("Horizontal", 3, 3, 11, 3))
sketch6.addConstraint(Sketcher.Constraint("Horizontal", 4, 3, 12, 3))
sketch6.addConstraint(Sketcher.Constraint("Horizontal", 5, 3, 13, 3))
sketch6.addConstraint(Sketcher.Constraint("Horizontal", 6, 3, 14, 3))
sketch6.addConstraint(Sketcher.Constraint("Horizontal", 7, 3, 15, 3))
sketch6.addConstraint(Sketcher.Constraint("Vertical", 0, 3, 1, 3))
sketch6.addConstraint(Sketcher.Constraint("Vertical", 1, 3, 2, 3))
sketch6.addConstraint(Sketcher.Constraint("Vertical", 2, 3, 3, 3))
sketch6.addConstraint(Sketcher.Constraint("Vertical", 3, 3, 4, 3))
sketch6.addConstraint(Sketcher.Constraint("Vertical", 4, 3, 5, 3))
sketch6.addConstraint(Sketcher.Constraint("Vertical", 5, 3, 6, 3))
sketch6.addConstraint(Sketcher.Constraint("Vertical", 6, 3, 7, 3))
sketch6.addConstraint(Sketcher.Constraint("Vertical", 8, 3, 9, 3))
sketch6.addConstraint(Sketcher.Constraint("Vertical", 9, 3, 10, 3))
sketch6.addConstraint(Sketcher.Constraint("Vertical", 10, 3, 11, 3))
sketch6.addConstraint(Sketcher.Constraint("Vertical", 11, 3, 12, 3))
sketch6.addConstraint(Sketcher.Constraint("Vertical", 12, 3, 13, 3))
sketch6.addConstraint(Sketcher.Constraint("Vertical", 13, 3, 14, 3))
sketch6.addConstraint(Sketcher.Constraint("Vertical", 14, 3, 15, 3))
sketch6.addConstraint(Sketcher.Constraint("Diameter", 0, Q("0.05 in")))
sketch6.addConstraint(Sketcher.Constraint("DistanceY", 0, 3, 1, 3, Q("0.2 in")))
sketch6.addConstraint(Sketcher.Constraint("DistanceY", 0, 3, 2, 3, Q("0.1 in")))
sketch6.addConstraint(Sketcher.Constraint("DistanceY", 3, 3, 0, 3, Q("0.1 in")))
sketch6.addConstraint(Sketcher.Constraint("DistanceY", 4, 3, 3, 3, Q("0.1 in")))
sketch6.addConstraint(Sketcher.Constraint("DistanceY", 5, 3, 4, 3, Q("0.1 in")))
sketch6.addConstraint(Sketcher.Constraint("DistanceY", 6, 3, 5, 3, Q("0.1 in")))
sketch6.addConstraint(Sketcher.Constraint("DistanceY", 7, 3, 6, 3, Q("0.1 in")))
sketch6.addConstraint(Sketcher.Constraint("DistanceX", 1, 3, 8, 3, Q("0.3 in")))
sketch6.addConstraint(Sketcher.Constraint("DistanceX", 0, 3, -1, 1, Q("0.35 in")))
sketch6.addConstraint(Sketcher.Constraint("DistanceY", 0, 3, -1, 1, Q("0.25 in")))
pad2 = body.newObject("PartDesign::Pad", "Pad001")
pad2.Profile = sketch6
pad2.Length = Q("0.075 in")
doc.recompute()

chamfer = body.newObject("PartDesign::Chamfer", "Chamfer")
chamfer.Base = (pad2, edges_at(pad2, [(-1.905, -1.905, -1.27)]))
chamfer.ChamferType = "Two distances"
chamfer.Size = Q("0.0125 in")
chamfer.Size2 = Q("0.025 in")
chamfer.FlipDirection = True
doc.recompute()

chamfer2 = body.newObject("PartDesign::Chamfer", "Chamfer001")
chamfer2.Base = (chamfer, edges_at(chamfer, [(-1.905, -1.905, -3.81)]))
chamfer2.ChamferType = "Two distances"
chamfer2.Size = Q("0.0125 in")
chamfer2.Size2 = Q("0.025 in")
chamfer2.FlipDirection = True
doc.recompute()

chamfer3 = body.newObject("PartDesign::Chamfer", "Chamfer002")
chamfer3.Base = (chamfer2, edges_at(chamfer2, [(-1.905, -1.905, -6.35)]))
chamfer3.ChamferType = "Two distances"
chamfer3.Size = Q("0.0125 in")
chamfer3.Size2 = Q("0.025 in")
chamfer3.FlipDirection = True
doc.recompute()

chamfer4 = body.newObject("PartDesign::Chamfer", "Chamfer003")
chamfer4.Base = (chamfer3, edges_at(chamfer3, [(-1.905, -1.905, -8.89)]))
chamfer4.ChamferType = "Two distances"
chamfer4.Size = Q("0.0125 in")
chamfer4.Size2 = Q("0.025 in")
chamfer4.FlipDirection = True
doc.recompute()

chamfer5 = body.newObject("PartDesign::Chamfer", "Chamfer004")
chamfer5.Base = (chamfer4, edges_at(chamfer4, [(-1.905, -1.905, -11.43)]))
chamfer5.ChamferType = "Two distances"
chamfer5.Size = Q("0.0125 in")
chamfer5.Size2 = Q("0.025 in")
chamfer5.FlipDirection = True
doc.recompute()

chamfer6 = body.newObject("PartDesign::Chamfer", "Chamfer005")
chamfer6.Base = (chamfer5, edges_at(chamfer5, [(-1.905, -1.905, -13.97)]))
chamfer6.ChamferType = "Two distances"
chamfer6.Size = Q("0.0125 in")
chamfer6.Size2 = Q("0.025 in")
chamfer6.FlipDirection = True
doc.recompute()

chamfer7 = body.newObject("PartDesign::Chamfer", "Chamfer006")
chamfer7.Base = (chamfer6, edges_at(chamfer6, [(-1.905, -1.905, -16.51)]))
chamfer7.ChamferType = "Two distances"
chamfer7.Size = Q("0.0125 in")
chamfer7.Size2 = Q("0.025 in")
chamfer7.FlipDirection = True
doc.recompute()

chamfer8 = body.newObject("PartDesign::Chamfer", "Chamfer007")
chamfer8.Base = (chamfer7, edges_at(chamfer7, [(-1.905, -1.905, -19.05)]))
chamfer8.ChamferType = "Two distances"
chamfer8.Size = Q("0.0125 in")
chamfer8.Size2 = Q("0.025 in")
chamfer8.FlipDirection = True
doc.recompute()

chamfer9 = body.newObject("PartDesign::Chamfer", "Chamfer008")
chamfer9.Base = (chamfer8, edges_at(chamfer8, [(-9.525, -1.905, -19.05)]))
chamfer9.ChamferType = "Two distances"
chamfer9.Size = Q("0.0125 in")
chamfer9.Size2 = Q("0.025 in")
chamfer9.FlipDirection = True
doc.recompute()

chamfer10 = body.newObject("PartDesign::Chamfer", "Chamfer009")
chamfer10.Base = (chamfer9, edges_at(chamfer9, [(-9.525, -1.905, -16.51)]))
chamfer10.ChamferType = "Two distances"
chamfer10.Size = Q("0.0125 in")
chamfer10.Size2 = Q("0.025 in")
chamfer10.FlipDirection = True
doc.recompute()

chamfer11 = body.newObject("PartDesign::Chamfer", "Chamfer010")
chamfer11.Base = (chamfer10, edges_at(chamfer10, [(-9.525, -1.905, -13.97)]))
chamfer11.ChamferType = "Two distances"
chamfer11.Size = Q("0.0125 in")
chamfer11.Size2 = Q("0.025 in")
chamfer11.FlipDirection = True
doc.recompute()

chamfer12 = body.newObject("PartDesign::Chamfer", "Chamfer011")
chamfer12.Base = (chamfer11, edges_at(chamfer11, [(-9.525, -1.905, -11.43)]))
chamfer12.ChamferType = "Two distances"
chamfer12.Size = Q("0.0125 in")
chamfer12.Size2 = Q("0.025 in")
chamfer12.FlipDirection = True
doc.recompute()

chamfer13 = body.newObject("PartDesign::Chamfer", "Chamfer012")
chamfer13.Base = (chamfer12, edges_at(chamfer12, [(-9.525, -1.905, -8.89)]))
chamfer13.ChamferType = "Two distances"
chamfer13.Size = Q("0.0125 in")
chamfer13.Size2 = Q("0.025 in")
chamfer13.FlipDirection = True
doc.recompute()

chamfer14 = body.newObject("PartDesign::Chamfer", "Chamfer013")
chamfer14.Base = (chamfer13, edges_at(chamfer13, [(-9.525, -1.905, -6.35)]))
chamfer14.ChamferType = "Two distances"
chamfer14.Size = Q("0.0125 in")
chamfer14.Size2 = Q("0.025 in")
chamfer14.FlipDirection = True
doc.recompute()

chamfer15 = body.newObject("PartDesign::Chamfer", "Chamfer014")
chamfer15.Base = (chamfer14, edges_at(chamfer14, [(-9.525, -1.905, -3.81)]))
chamfer15.ChamferType = "Two distances"
chamfer15.Size = Q("0.0125 in")
chamfer15.Size2 = Q("0.025 in")
chamfer15.FlipDirection = True
doc.recompute()

chamfer16 = body.newObject("PartDesign::Chamfer", "Chamfer015")
chamfer16.Base = (chamfer15, edges_at(chamfer15, [(-9.525, -1.905, -1.27)]))
chamfer16.ChamferType = "Two distances"
chamfer16.Size = Q("0.0125 in")
chamfer16.Size2 = Q("0.025 in")
chamfer16.FlipDirection = True

sketch7 = body.newObject("Sketcher::SketchObject", "Sketch006")
sketch7.AttachmentSupport = (doc.getObject("XZ_Plane"), [""])
sketch7.MapMode = "FlatFace"
sketch7.AttachmentOffset = App.Placement(App.Vector(0, 0, 0.075 * 25.4), App.Rotation())
sketch7.addGeometry(Part.Circle(App.Vector(-1.27, -19.05, 0), App.Vector(0, 0, 1), 0.3175), False)
sketch7.addGeometry(Part.Circle(App.Vector(-1.27, -16.51, 0), App.Vector(0, 0, 1), 0.3175), False)
sketch7.addGeometry(Part.Circle(App.Vector(-1.27, -13.97, 0), App.Vector(0, 0, 1), 0.3175), False)
sketch7.addGeometry(Part.Circle(App.Vector(-1.27, -11.43, 0), App.Vector(0, 0, 1), 0.3175), False)
sketch7.addGeometry(Part.Circle(App.Vector(-1.27, -8.89, 0), App.Vector(0, 0, 1), 0.3175), False)
sketch7.addGeometry(Part.Circle(App.Vector(-1.27, -6.35, 0), App.Vector(0, 0, 1), 0.3175), False)
sketch7.addGeometry(Part.Circle(App.Vector(-1.27, -3.81, 0), App.Vector(0, 0, 1), 0.3175), False)
sketch7.addGeometry(Part.Circle(App.Vector(-1.27, -1.27, 0), App.Vector(0, 0, 1), 0.3175), False)
sketch7.addGeometry(Part.Circle(App.Vector(-8.89, -19.05, 0), App.Vector(0, 0, 1), 0.3175), False)
sketch7.addGeometry(Part.Circle(App.Vector(-8.89, -16.51, 0), App.Vector(0, 0, 1), 0.3175), False)
sketch7.addGeometry(Part.Circle(App.Vector(-8.89, -13.97, 0), App.Vector(0, 0, 1), 0.3175), False)
sketch7.addGeometry(Part.Circle(App.Vector(-8.89, -11.43, 0), App.Vector(0, 0, 1), 0.3175), False)
sketch7.addGeometry(Part.Circle(App.Vector(-8.89, -8.89, 0), App.Vector(0, 0, 1), 0.3175), False)
sketch7.addGeometry(Part.Circle(App.Vector(-8.89, -6.35, 0), App.Vector(0, 0, 1), 0.3175), False)
sketch7.addGeometry(Part.Circle(App.Vector(-8.89, -3.81, 0), App.Vector(0, 0, 1), 0.3175), False)
sketch7.addGeometry(Part.Circle(App.Vector(-8.89, -1.27, 0), App.Vector(0, 0, 1), 0.3175), False)
sketch7.addConstraint(Sketcher.Constraint("Equal", 0, 1))
sketch7.addConstraint(Sketcher.Constraint("Equal", 1, 2))
sketch7.addConstraint(Sketcher.Constraint("Equal", 2, 3))
sketch7.addConstraint(Sketcher.Constraint("Equal", 3, 4))
sketch7.addConstraint(Sketcher.Constraint("Equal", 4, 5))
sketch7.addConstraint(Sketcher.Constraint("Equal", 5, 6))
sketch7.addConstraint(Sketcher.Constraint("Equal", 6, 7))
sketch7.addConstraint(Sketcher.Constraint("Equal", 7, 8))
sketch7.addConstraint(Sketcher.Constraint("Equal", 8, 9))
sketch7.addConstraint(Sketcher.Constraint("Equal", 9, 10))
sketch7.addConstraint(Sketcher.Constraint("Equal", 10, 11))
sketch7.addConstraint(Sketcher.Constraint("Equal", 11, 12))
sketch7.addConstraint(Sketcher.Constraint("Equal", 12, 13))
sketch7.addConstraint(Sketcher.Constraint("Equal", 13, 14))
sketch7.addConstraint(Sketcher.Constraint("Equal", 14, 15))
sketch7.addConstraint(Sketcher.Constraint("Horizontal", 0, 3, 8, 3))
sketch7.addConstraint(Sketcher.Constraint("Horizontal", 1, 3, 9, 3))
sketch7.addConstraint(Sketcher.Constraint("Horizontal", 2, 3, 10, 3))
sketch7.addConstraint(Sketcher.Constraint("Horizontal", 3, 3, 11, 3))
sketch7.addConstraint(Sketcher.Constraint("Horizontal", 4, 3, 12, 3))
sketch7.addConstraint(Sketcher.Constraint("Horizontal", 5, 3, 13, 3))
sketch7.addConstraint(Sketcher.Constraint("Horizontal", 6, 3, 14, 3))
sketch7.addConstraint(Sketcher.Constraint("Horizontal", 7, 3, 15, 3))
sketch7.addConstraint(Sketcher.Constraint("Vertical", 0, 3, 1, 3))
sketch7.addConstraint(Sketcher.Constraint("Vertical", 1, 3, 2, 3))
sketch7.addConstraint(Sketcher.Constraint("Vertical", 2, 3, 3, 3))
sketch7.addConstraint(Sketcher.Constraint("Vertical", 3, 3, 4, 3))
sketch7.addConstraint(Sketcher.Constraint("Vertical", 4, 3, 5, 3))
sketch7.addConstraint(Sketcher.Constraint("Vertical", 5, 3, 6, 3))
sketch7.addConstraint(Sketcher.Constraint("Vertical", 6, 3, 7, 3))
sketch7.addConstraint(Sketcher.Constraint("Vertical", 8, 3, 9, 3))
sketch7.addConstraint(Sketcher.Constraint("Vertical", 9, 3, 10, 3))
sketch7.addConstraint(Sketcher.Constraint("Vertical", 10, 3, 11, 3))
sketch7.addConstraint(Sketcher.Constraint("Vertical", 11, 3, 12, 3))
sketch7.addConstraint(Sketcher.Constraint("Vertical", 12, 3, 13, 3))
sketch7.addConstraint(Sketcher.Constraint("Vertical", 13, 3, 14, 3))
sketch7.addConstraint(Sketcher.Constraint("Vertical", 14, 3, 15, 3))
sketch7.addConstraint(Sketcher.Constraint("Diameter", 0, Q("0.025 in")))
sketch7.addConstraint(Sketcher.Constraint("DistanceY", 0, 3, 1, 3, Q("0.1 in")))
sketch7.addConstraint(Sketcher.Constraint("DistanceY", 1, 3, 2, 3, Q("0.1 in")))
sketch7.addConstraint(Sketcher.Constraint("DistanceY", 2, 3, 3, 3, Q("0.1 in")))
sketch7.addConstraint(Sketcher.Constraint("DistanceY", 3, 3, 4, 3, Q("0.1 in")))
sketch7.addConstraint(Sketcher.Constraint("DistanceY", 4, 3, 5, 3, Q("0.1 in")))
sketch7.addConstraint(Sketcher.Constraint("DistanceY", 5, 3, 6, 3, Q("0.1 in")))
sketch7.addConstraint(Sketcher.Constraint("DistanceY", 6, 3, 7, 3, Q("0.1 in")))
sketch7.addConstraint(Sketcher.Constraint("DistanceX", 8, 3, 0, 3, Q("0.3 in")))
sketch7.addConstraint(Sketcher.Constraint("DistanceX", 0, 3, -1, 1, Q("0.05 in")))
sketch7.addConstraint(Sketcher.Constraint("DistanceY", 0, 3, -1, 1, Q("0.75 in")))
pad3 = body.newObject("PartDesign::Pad", "Pad002")
pad3.Profile = sketch7
pad3.Length = Q("0.1 in")
doc.recompute()

fillet = body.newObject("PartDesign::Fillet", "Fillet")
fillet.Base = (pad3, edges_at(pad3, [
    (-9.207, -4.445, -19.05),
    (-9.207, -4.445, -16.51),
    (-9.207, -4.445, -13.97),
    (-9.207, -4.445, -11.43),
    (-9.207, -4.445, -8.89),
    (-9.207, -4.445, -6.35),
    (-9.207, -4.445, -3.81),
    (-9.207, -4.445, -1.27),
    (-1.587, -4.445, -1.27),
    (-1.587, -4.445, -3.81),
    (-1.587, -4.445, -6.35),
    (-1.587, -4.445, -8.89),
    (-1.587, -4.445, -11.43),
    (-1.587, -4.445, -13.97),
    (-1.587, -4.445, -16.51),
    (-1.587, -4.445, -19.05),
]))
fillet.Radius = Q("0.005 in")

doc.recompute()
